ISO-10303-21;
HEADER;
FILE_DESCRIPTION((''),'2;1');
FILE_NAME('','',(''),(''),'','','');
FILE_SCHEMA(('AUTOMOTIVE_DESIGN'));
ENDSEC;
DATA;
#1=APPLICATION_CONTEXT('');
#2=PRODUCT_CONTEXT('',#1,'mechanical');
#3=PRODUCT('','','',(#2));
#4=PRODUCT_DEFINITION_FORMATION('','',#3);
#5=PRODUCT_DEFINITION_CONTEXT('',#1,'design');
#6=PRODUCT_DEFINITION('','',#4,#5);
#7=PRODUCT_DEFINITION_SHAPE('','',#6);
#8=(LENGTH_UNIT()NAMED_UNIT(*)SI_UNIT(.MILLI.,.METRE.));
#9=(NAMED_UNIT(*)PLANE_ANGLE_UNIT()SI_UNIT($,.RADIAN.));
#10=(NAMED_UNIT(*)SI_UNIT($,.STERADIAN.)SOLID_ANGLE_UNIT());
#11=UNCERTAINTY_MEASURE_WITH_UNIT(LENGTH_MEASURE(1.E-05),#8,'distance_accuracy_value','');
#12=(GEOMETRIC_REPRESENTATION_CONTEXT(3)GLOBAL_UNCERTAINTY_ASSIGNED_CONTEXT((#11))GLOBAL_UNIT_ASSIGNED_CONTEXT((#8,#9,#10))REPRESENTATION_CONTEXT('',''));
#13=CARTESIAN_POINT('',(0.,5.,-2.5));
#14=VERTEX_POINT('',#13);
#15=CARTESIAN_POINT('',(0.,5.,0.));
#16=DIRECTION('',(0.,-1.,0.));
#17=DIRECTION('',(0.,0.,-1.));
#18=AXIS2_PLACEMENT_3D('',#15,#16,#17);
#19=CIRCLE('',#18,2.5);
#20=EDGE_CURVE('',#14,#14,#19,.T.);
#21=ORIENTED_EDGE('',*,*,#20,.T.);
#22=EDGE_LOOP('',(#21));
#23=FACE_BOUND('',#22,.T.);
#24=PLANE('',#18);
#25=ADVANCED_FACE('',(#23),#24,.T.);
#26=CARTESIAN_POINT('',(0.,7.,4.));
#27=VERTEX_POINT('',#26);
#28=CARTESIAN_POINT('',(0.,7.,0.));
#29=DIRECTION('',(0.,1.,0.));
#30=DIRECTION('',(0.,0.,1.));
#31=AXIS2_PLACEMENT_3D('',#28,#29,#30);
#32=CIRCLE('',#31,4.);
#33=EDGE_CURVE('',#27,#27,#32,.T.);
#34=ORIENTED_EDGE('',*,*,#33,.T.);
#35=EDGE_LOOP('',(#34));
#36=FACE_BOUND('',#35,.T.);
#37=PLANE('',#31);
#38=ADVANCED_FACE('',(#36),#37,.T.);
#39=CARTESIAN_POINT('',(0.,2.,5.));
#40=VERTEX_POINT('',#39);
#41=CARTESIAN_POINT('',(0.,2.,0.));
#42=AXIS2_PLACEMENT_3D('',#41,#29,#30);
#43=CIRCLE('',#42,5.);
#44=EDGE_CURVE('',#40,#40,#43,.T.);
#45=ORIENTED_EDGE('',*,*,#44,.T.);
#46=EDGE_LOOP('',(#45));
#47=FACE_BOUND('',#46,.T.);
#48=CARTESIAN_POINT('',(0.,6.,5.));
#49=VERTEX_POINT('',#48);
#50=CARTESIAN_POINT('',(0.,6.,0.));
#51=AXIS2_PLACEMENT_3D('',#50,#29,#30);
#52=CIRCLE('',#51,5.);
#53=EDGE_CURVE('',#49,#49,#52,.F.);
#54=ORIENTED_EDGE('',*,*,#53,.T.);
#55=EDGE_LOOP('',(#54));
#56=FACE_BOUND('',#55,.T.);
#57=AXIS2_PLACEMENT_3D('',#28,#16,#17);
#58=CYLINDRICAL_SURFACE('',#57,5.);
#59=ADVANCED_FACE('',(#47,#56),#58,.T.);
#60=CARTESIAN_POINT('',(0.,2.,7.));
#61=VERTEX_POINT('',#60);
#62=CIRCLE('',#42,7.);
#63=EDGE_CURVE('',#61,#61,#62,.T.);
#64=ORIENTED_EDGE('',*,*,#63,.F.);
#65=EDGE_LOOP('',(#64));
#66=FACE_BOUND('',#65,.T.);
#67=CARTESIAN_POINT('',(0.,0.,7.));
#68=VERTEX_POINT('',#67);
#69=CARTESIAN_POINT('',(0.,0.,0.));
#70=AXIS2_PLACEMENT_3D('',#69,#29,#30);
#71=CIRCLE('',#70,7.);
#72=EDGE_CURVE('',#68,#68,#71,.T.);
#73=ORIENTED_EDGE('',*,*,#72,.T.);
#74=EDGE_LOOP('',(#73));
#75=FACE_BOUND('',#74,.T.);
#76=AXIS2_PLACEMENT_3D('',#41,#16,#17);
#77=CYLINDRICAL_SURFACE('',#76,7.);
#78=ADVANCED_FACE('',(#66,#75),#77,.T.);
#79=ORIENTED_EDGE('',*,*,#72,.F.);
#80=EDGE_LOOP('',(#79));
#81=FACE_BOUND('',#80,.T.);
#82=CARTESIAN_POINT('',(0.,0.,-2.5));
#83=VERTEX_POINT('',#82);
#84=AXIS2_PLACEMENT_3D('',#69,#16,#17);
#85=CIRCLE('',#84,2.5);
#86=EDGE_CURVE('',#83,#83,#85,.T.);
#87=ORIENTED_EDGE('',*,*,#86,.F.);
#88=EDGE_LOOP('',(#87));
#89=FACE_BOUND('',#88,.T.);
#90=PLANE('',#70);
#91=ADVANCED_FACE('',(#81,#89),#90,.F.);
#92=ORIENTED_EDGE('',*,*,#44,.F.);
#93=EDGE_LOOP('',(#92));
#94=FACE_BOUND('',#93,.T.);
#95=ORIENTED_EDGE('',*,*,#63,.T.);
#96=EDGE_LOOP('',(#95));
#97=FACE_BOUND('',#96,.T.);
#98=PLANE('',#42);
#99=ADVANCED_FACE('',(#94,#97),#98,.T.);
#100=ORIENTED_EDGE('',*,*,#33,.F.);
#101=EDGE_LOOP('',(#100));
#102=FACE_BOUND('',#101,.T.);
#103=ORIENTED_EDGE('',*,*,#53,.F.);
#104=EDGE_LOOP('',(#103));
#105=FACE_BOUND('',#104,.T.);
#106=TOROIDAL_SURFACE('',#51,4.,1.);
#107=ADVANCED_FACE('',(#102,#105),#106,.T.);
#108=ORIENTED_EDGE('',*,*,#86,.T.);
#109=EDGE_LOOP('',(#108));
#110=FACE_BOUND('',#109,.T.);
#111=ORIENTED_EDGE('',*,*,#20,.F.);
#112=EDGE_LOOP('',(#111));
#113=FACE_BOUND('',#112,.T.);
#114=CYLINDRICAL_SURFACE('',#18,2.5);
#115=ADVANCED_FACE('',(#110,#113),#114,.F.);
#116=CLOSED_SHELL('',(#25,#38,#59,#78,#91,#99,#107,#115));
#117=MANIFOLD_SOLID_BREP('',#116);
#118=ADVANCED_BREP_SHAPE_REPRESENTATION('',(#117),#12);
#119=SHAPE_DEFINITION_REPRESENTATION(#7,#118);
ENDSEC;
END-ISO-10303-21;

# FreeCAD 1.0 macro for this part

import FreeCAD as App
import Part
import Sketcher

V = App.Vector
Q = App.Units.Quantity


def edges_at(feature, points):
    """Names of the edges that pass closest to the given points."""
    edges = feature.Shape.Edges
    near = lambda p: min(range(len(edges)), key=lambda i: edges[i].distToShape(Part.Vertex(*p))[0])
    return sorted({f"Edge{near(p) + 1}" for p in points})

doc = App.newDocument("Part")
body = doc.addObject("PartDesign::Body", "Body")

sketch1 = doc.addObject("Sketcher::SketchObject", "Sketch")
body.addObject(sketch1)
sketch1.AttachmentSupport = (doc.XZ_Plane, [""])
sketch1.MapMode = "FlatFace"
sketch1.addGeometry(Part.Circle(V(0, 0, 0), V(0, 0, 1), 7), False)
sketch1.addConstraint([
    Sketcher.Constraint("Coincident", 0, 3, -1, 1),
    Sketcher.Constraint("Diameter", 0, Q("14 mm")),
])
pad1 = doc.addObject("PartDesign::Pad", "Pad")
body.addObject(pad1)
pad1.Profile = sketch1
pad1.Length = 2
pad1.Reversed = True

sketch2 = doc.addObject("Sketcher::SketchObject", "Sketch001")
body.addObject(sketch2)
sketch2.AttachmentSupport = (doc.XZ_Plane, [""])
sketch2.MapMode = "FlatFace"
sketch2.AttachmentOffset = App.Placement(V(0, 0, -2), App.Rotation())
sketch2.addGeometry(Part.Circle(V(0, 0, 0), V(0, 0, 1), 5), False)
sketch2.addConstraint([
    Sketcher.Constraint("Coincident", 0, 3, -1, 1),
    Sketcher.Constraint("Diameter", 0, Q("10 mm")),
])
pad2 = doc.addObject("PartDesign::Pad", "Pad001")
body.addObject(pad2)
pad2.Profile = sketch2
pad2.Length = 5
pad2.Reversed = True

sketch3 = doc.addObject("Sketcher::SketchObject", "Sketch002")
body.addObject(sketch3)
sketch3.AttachmentSupport = (doc.XZ_Plane, [""])
sketch3.MapMode = "FlatFace"
sketch3.addGeometry(Part.Circle(V(0, 0, 0), V(0, 0, 1), 2.5), False)
sketch3.addConstraint([
    Sketcher.Constraint("Coincident", 0, 3, -1, 1),
    Sketcher.Constraint("Diameter", 0, Q("5 mm")),
])
pocket1 = doc.addObject("PartDesign::Pocket", "Pocket")
body.addObject(pocket1)
pocket1.Profile = sketch3
pocket1.Length = 5
doc.recompute()

fillet = doc.addObject("PartDesign::Fillet", "Fillet")
body.addObject(fillet)
fillet.Base = (pocket1, edges_at(pocket1, [(-5, 7, 0)]))
fillet.Radius = 1

doc.recompute()
